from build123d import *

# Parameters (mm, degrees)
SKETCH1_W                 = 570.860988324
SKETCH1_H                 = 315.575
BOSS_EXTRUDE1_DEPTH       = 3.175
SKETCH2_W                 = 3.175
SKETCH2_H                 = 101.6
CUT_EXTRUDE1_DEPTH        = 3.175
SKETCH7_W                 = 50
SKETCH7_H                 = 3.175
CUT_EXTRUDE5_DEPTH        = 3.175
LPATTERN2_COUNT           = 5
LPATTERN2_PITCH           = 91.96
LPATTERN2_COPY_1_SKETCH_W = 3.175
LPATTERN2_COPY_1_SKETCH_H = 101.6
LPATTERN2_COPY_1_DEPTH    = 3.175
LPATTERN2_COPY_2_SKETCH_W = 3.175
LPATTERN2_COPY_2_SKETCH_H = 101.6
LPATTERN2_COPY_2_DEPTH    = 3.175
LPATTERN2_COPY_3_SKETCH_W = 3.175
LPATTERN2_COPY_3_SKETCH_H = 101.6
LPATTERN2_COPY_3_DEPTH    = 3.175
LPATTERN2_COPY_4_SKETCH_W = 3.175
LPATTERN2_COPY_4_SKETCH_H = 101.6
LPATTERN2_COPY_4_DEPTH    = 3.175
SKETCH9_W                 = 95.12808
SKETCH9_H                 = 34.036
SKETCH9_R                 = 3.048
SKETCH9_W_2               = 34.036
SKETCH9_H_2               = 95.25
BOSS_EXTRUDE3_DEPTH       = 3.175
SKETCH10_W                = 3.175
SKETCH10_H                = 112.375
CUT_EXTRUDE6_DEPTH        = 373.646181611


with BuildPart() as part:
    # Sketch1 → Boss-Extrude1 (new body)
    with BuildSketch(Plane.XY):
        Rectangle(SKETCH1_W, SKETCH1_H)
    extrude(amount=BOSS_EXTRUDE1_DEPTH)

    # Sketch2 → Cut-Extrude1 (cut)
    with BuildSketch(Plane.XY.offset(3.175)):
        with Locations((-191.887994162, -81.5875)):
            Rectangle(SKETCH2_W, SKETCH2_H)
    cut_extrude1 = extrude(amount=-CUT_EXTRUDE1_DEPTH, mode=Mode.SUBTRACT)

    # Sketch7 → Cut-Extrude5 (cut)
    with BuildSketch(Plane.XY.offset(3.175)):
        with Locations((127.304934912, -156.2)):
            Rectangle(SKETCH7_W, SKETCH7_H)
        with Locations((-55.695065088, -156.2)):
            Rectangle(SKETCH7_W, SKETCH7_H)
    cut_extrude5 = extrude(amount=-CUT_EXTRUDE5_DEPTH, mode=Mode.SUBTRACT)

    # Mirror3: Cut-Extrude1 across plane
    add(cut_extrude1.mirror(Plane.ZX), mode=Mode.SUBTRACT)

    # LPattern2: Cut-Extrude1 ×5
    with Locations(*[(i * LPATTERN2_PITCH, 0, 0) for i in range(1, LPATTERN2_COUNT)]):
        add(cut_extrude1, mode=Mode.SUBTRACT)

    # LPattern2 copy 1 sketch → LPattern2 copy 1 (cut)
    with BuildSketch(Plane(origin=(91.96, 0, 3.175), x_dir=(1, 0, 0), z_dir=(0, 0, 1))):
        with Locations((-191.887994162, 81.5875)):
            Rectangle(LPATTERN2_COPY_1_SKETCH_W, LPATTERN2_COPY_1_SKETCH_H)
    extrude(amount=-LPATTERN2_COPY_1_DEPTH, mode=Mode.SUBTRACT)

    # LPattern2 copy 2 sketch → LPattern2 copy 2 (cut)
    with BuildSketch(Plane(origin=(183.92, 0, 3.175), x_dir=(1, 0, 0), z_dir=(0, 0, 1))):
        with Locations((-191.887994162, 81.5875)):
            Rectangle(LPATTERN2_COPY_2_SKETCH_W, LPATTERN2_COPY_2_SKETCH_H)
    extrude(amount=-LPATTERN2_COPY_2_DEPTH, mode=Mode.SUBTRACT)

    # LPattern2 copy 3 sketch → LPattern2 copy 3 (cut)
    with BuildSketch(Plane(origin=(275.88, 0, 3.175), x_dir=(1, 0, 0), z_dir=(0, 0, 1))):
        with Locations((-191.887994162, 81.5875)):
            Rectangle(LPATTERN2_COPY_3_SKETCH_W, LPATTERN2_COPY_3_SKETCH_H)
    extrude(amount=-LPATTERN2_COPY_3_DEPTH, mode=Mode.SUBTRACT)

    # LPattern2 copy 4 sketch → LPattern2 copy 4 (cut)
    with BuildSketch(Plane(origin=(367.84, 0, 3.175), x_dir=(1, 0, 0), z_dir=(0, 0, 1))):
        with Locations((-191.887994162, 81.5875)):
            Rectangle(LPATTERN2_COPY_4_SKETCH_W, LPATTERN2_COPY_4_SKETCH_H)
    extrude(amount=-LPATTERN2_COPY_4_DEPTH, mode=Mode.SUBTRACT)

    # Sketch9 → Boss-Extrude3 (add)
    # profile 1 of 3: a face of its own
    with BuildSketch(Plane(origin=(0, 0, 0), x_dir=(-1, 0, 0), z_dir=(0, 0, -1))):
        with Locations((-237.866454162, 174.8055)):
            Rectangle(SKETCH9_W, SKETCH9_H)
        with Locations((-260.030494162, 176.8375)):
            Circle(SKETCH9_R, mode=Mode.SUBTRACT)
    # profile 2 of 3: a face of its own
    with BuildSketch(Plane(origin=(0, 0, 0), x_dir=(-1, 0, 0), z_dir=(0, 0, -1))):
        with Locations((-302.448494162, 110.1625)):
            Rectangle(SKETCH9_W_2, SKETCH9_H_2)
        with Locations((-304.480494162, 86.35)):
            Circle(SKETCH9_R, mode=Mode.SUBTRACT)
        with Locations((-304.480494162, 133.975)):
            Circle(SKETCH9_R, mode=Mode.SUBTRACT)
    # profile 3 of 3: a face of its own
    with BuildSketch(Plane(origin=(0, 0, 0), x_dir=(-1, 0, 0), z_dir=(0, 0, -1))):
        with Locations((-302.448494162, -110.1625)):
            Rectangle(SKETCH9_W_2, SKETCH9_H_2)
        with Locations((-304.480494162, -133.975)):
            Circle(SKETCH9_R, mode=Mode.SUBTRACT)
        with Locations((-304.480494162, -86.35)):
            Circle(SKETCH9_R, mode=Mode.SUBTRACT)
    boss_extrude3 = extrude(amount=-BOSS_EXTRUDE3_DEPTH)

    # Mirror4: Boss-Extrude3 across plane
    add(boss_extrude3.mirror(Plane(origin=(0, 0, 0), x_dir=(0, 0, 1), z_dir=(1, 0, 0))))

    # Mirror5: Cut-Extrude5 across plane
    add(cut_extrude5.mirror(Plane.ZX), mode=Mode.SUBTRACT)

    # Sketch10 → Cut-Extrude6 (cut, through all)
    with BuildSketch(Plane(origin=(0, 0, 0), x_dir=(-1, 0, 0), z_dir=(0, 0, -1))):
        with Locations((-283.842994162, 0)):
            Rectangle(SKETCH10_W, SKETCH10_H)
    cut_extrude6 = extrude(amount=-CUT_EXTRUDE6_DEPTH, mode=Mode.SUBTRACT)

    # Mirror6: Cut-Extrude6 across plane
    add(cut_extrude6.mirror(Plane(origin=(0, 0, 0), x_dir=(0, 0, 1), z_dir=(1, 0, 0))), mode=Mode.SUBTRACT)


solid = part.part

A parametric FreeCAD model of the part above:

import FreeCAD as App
import Part
import Sketcher

V = App.Vector
Q = App.Units.Quantity


def add_polygon(sketch, points):
    """Adds a closed chain of lines whose ends are joined by coincident constraints."""
    first, n = sketch.GeometryCount, len(points)
    for a, b in zip(points, points[1:] + points[:1]):
        sketch.addGeometry(Part.LineSegment(App.Vector(*a, 0), App.Vector(*b, 0)), False)
    for i in range(n):
        sketch.addConstraint(Sketcher.Constraint("Coincident", first + i, 2, first + (i + 1) % n, 1))

doc = App.newDocument("Part")
body = doc.addObject("PartDesign::Body", "Body")

# Sketch on XY plane
sketch1 = body.newObject("Sketcher::SketchObject", "Sketch")
sketch1.AttachmentSupport = (doc.getObject("XY_Plane"), [""])
sketch1.MapMode = "FlatFace"
add_polygon(sketch1, [(-285, 158), (-285, -158), (285, -158), (285, 158)])  # lines 0-3
sketch1.addConstraint([
    Sketcher.Constraint("Vertical", 0),
    Sketcher.Constraint("Horizontal", 1),
    Sketcher.Constraint("Vertical", 2),
    Sketcher.Constraint("Horizontal", 3),
    Sketcher.Constraint("Symmetric", 0, 2, 2, 2, -1, 1),
    Sketcher.Constraint("DistanceY", 0, 2, 0, 1, 315.575),
    Sketcher.Constraint("DistanceX", 1, 1, 1, 2, 570.860988),
])
pad1 = body.newObject("PartDesign::Pad", "Pad")
pad1.Profile = sketch1
pad1.Length = Q("0.125 in")

# Sketch on XY plane
sketch2 = body.newObject("Sketcher::SketchObject", "Sketch001")
sketch2.AttachmentSupport = (doc.getObject("XY_Plane"), [""])
sketch2.MapMode = "FlatFace"
sketch2.AttachmentOffset = App.Placement(V(0, 0, 0.125 * 25.4), App.Rotation())
add_polygon(sketch2, [(-193.5, -30.8), (-193.5, -132.4), (-190.3, -132.4), (-190.3, -30.8)])  # lines 0-3
sketch2.addConstraint([
    Sketcher.Constraint("Vertical", 0),
    Sketcher.Constraint("Horizontal", 1),
    Sketcher.Constraint("Vertical", 2),
    Sketcher.Constraint("Horizontal", 3),
    Sketcher.Constraint("DistanceY", 0, 2, 0, 1, Q("4 in")),
    Sketcher.Constraint("DistanceX", 1, 1, 1, 2, Q("0.125 in")),
    Sketcher.Constraint("DistanceY", 0, 2, -1, 1, 132.3875),
    Sketcher.Constraint("DistanceX", 0, 2, -1, 1, 193.475494),
])
pocket1 = body.newObject("PartDesign::Pocket", "Pocket")
pocket1.Profile = sketch2
pocket1.Length = Q("0.125 in")

# Sketch on XY plane
sketch3 = body.newObject("Sketcher::SketchObject", "Sketch002")
sketch3.AttachmentSupport = (doc.getObject("XY_Plane"), [""])
sketch3.MapMode = "FlatFace"
sketch3.AttachmentOffset = App.Placement(V(0, 0, 0.125 * 25.4), App.Rotation())
add_polygon(sketch3, [(102.3, -154.6), (102.3, -157.8), (152.3, -157.8), (152.3, -154.6)])  # lines 0-3
add_polygon(sketch3, [(-80.7, -154.6), (-80.7, -157.8), (-30.7, -157.8), (-30.7, -154.6)])  # lines 4-7
sketch3.addConstraint([
    Sketcher.Constraint("Vertical", 0),
    Sketcher.Constraint("Horizontal", 1),
    Sketcher.Constraint("Vertical", 2),
    Sketcher.Constraint("Horizontal", 3),
    Sketcher.Constraint("Vertical", 4),
    Sketcher.Constraint("Horizontal", 5),
    Sketcher.Constraint("Vertical", 6),
    Sketcher.Constraint("Horizontal", 7),
    Sketcher.Constraint("Horizontal", 1, 2, 4, 2),
    Sketcher.Constraint("Horizontal", 3, 2, 6, 2),
    Sketcher.Constraint("Equal", 3, 5),
    Sketcher.Constraint("DistanceY", 0, 2, 0, 1, Q("0.125 in")),
    Sketcher.Constraint("DistanceX", 1, 1, 1, 2, 50.0),
    Sketcher.Constraint("DistanceY", 0, 2, -1, 1, 157.7875),
    Sketcher.Constraint("DistanceX", 4, 2, 0, 2, 183.0),
    Sketcher.Constraint("DistanceX", -1, 1, 0, 2, 102.304935),
])
pocket2 = body.newObject("PartDesign::Pocket", "Pocket001")
pocket2.Profile = sketch3
pocket2.Length = Q("0.125 in")
doc.recompute()

mirrored = body.newObject("PartDesign::Mirrored", "Mirrored")
mirrored.Originals = [pocket1]
mirrored.MirrorPlane = (doc.getObject("XZ_Plane"), [""])
body.Tip = mirrored
doc.recompute()

linearpattern = body.newObject("PartDesign::LinearPattern", "LinearPattern")
linearpattern.Originals = [pocket1]
linearpattern.Direction = (doc.getObject("X_Axis"), [""])
linearpattern.Mode = "offset"
linearpattern.Offset = 91.96
linearpattern.Occurrences = 5
body.Tip = linearpattern

# Sketch on XY plane
sketch4 = body.newObject("Sketcher::SketchObject", "Sketch003")
sketch4.AttachmentSupport = (doc.getObject("XY_Plane"), [""])
sketch4.MapMode = "FlatFace"
sketch4.AttachmentOffset = App.Placement(V(0, 0, 0.125 * 25.4), App.Rotation())
add_polygon(sketch4, [(-101.5, 132.4), (-101.5, 30.8), (-98.3, 30.8), (-98.3, 132.4)])  # lines 0-3
sketch4.addConstraint([
    Sketcher.Constraint("Vertical", 0),
    Sketcher.Constraint("Horizontal", 1),
    Sketcher.Constraint("Vertical", 2),
    Sketcher.Constraint("Horizontal", 3),
    Sketcher.Constraint("DistanceY", 0, 2, 0, 1, Q("4 in")),
    Sketcher.Constraint("DistanceX", 1, 1, 1, 2, Q("0.125 in")),
    Sketcher.Constraint("DistanceY", -1, 1, 0, 2, 30.7875),
    Sketcher.Constraint("DistanceX", 0, 2, -1, 1, 101.515494),
])
pocket3 = body.newObject("PartDesign::Pocket", "Pocket002")
pocket3.Profile = sketch4
pocket3.Length = Q("0.125 in")

# Sketch on XY plane
sketch5 = body.newObject("Sketcher::SketchObject", "Sketch004")
sketch5.AttachmentSupport = (doc.getObject("XY_Plane"), [""])
sketch5.MapMode = "FlatFace"
sketch5.AttachmentOffset = App.Placement(V(0, 0, 0.125 * 25.4), App.Rotation())
add_polygon(sketch5, [(-9.6, 132.4), (-9.6, 30.8), (-6.4, 30.8), (-6.4, 132.4)])  # lines 0-3
sketch5.addConstraint([
    Sketcher.Constraint("Vertical", 0),
    Sketcher.Constraint("Horizontal", 1),
    Sketcher.Constraint("Vertical", 2),
    Sketcher.Constraint("Horizontal", 3),
    Sketcher.Constraint("DistanceY", 0, 2, 0, 1, Q("4 in")),
    Sketcher.Constraint("DistanceX", 1, 1, 1, 2, Q("0.125 in")),
    Sketcher.Constraint("DistanceY", -1, 1, 0, 2, 30.7875),
    Sketcher.Constraint("DistanceX", 0, 2, -1, 1, 9.555494),
])
pocket4 = body.newObject("PartDesign::Pocket", "Pocket003")
pocket4.Profile = sketch5
pocket4.Length = Q("0.125 in")

# Sketch on XY plane
sketch6 = body.newObject("Sketcher::SketchObject", "Sketch005")
sketch6.AttachmentSupport = (doc.getObject("XY_Plane"), [""])
sketch6.MapMode = "FlatFace"
sketch6.AttachmentOffset = App.Placement(V(0, 0, 0.125 * 25.4), App.Rotation())
add_polygon(sketch6, [(82.4, 132.4), (82.4, 30.8), (85.6, 30.8), (85.6, 132.4)])  # lines 0-3
sketch6.addConstraint([
    Sketcher.Constraint("Vertical", 0),
    Sketcher.Constraint("Horizontal", 1),
    Sketcher.Constraint("Vertical", 2),
    Sketcher.Constraint("Horizontal", 3),
    Sketcher.Constraint("DistanceY", 0, 2, 0, 1, Q("4 in")),
    Sketcher.Constraint("DistanceX", 1, 1, 1, 2, Q("0.125 in")),
    Sketcher.Constraint("DistanceY", -1, 1, 0, 2, 30.7875),
    Sketcher.Constraint("DistanceX", -1, 1, 0, 2, 82.404506),
])
pocket5 = body.newObject("PartDesign::Pocket", "Pocket004")
pocket5.Profile = sketch6
pocket5.Length = Q("0.125 in")

# Sketch on XY plane
sketch7 = body.newObject("Sketcher::SketchObject", "Sketch006")
sketch7.AttachmentSupport = (doc.getObject("XY_Plane"), [""])
sketch7.MapMode = "FlatFace"
sketch7.AttachmentOffset = App.Placement(V(0, 0, 0.125 * 25.4), App.Rotation())
add_polygon(sketch7, [(174.4, 132.4), (174.4, 30.8), (177.5, 30.8), (177.5, 132.4)])  # lines 0-3
sketch7.addConstraint([
    Sketcher.Constraint("Vertical", 0),
    Sketcher.Constraint("Horizontal", 1),
    Sketcher.Constraint("Vertical", 2),
    Sketcher.Constraint("Horizontal", 3),
    Sketcher.Constraint("DistanceY", 0, 2, 0, 1, Q("4 in")),
    Sketcher.Constraint("DistanceX", 1, 1, 1, 2, Q("0.125 in")),
    Sketcher.Constraint("DistanceY", -1, 1, 0, 2, 30.7875),
    Sketcher.Constraint("DistanceX", -1, 1, 0, 2, 174.364506),
])
pocket6 = body.newObject("PartDesign::Pocket", "Pocket005")
pocket6.Profile = sketch7
pocket6.Length = Q("0.125 in")

# Sketch on XY plane
sketch8 = body.newObject("Sketcher::SketchObject", "Sketch007")
sketch8.AttachmentSupport = (doc.getObject("XY_Plane"), [""])
sketch8.MapMode = "FlatFace"
add_polygon(sketch8, [(285.4, 191.8), (285.4, 157.8), (190.3, 157.8), (190.3, 191.8)])  # lines 0-3
sketch8.addGeometry(Part.Circle(V(260, 176.8, 0), V(0, 0, 1), 3), False)  # 4
add_polygon(sketch8, [(319.5, 157.8), (319.5, 62.5), (285.4, 62.5), (285.4, 157.8)])  # lines 5-8
sketch8.addGeometry(Part.Circle(V(304.5, 86.3, 0), V(0, 0, 1), 3), False)  # 9
sketch8.addGeometry(Part.Circle(V(304.5, 134, 0), V(0, 0, 1), 3), False)  # 10
add_polygon(sketch8, [(319.5, -62.5), (319.5, -157.8), (285.4, -157.8), (285.4, -62.5)])  # lines 11-14
sketch8.addGeometry(Part.Circle(V(304.5, -134, 0), V(0, 0, 1), 3), False)  # 15
sketch8.addGeometry(Part.Circle(V(304.5, -86.3, 0), V(0, 0, 1), 3), False)  # 16
sketch8.addConstraint([
    Sketcher.Constraint("Vertical", 0),
    Sketcher.Constraint("Horizontal", 1),
    Sketcher.Constraint("Vertical", 2),
    Sketcher.Constraint("Horizontal", 3),
    Sketcher.Constraint("Vertical", 5),
    Sketcher.Constraint("Horizontal", 6),
    Sketcher.Constraint("Vertical", 7),
    Sketcher.Constraint("Horizontal", 8),
    Sketcher.Constraint("Vertical", 11),
    Sketcher.Constraint("Horizontal", 12),
    Sketcher.Constraint("Vertical", 13),
    Sketcher.Constraint("Horizontal", 14),
    Sketcher.Constraint("Coincident", 7, 2, 0, 2),
    Sketcher.Constraint("Equal", 4, 9),
    Sketcher.Constraint("Equal", 9, 10),
    Sketcher.Constraint("Equal", 10, 15),
    Sketcher.Constraint("Equal", 15, 16),
    Sketcher.Constraint("Symmetric", 10, 3, 15, 3, -1),
    Sketcher.Constraint("Symmetric", 9, 3, 16, 3, -1),
    Sketcher.Constraint("Symmetric", 8, 2, 11, 2, -1),
    Sketcher.Constraint("Symmetric", 6, 2, 13, 2, -1),
    Sketcher.Constraint("Vertical", 9, 3, 10, 3),
    Sketcher.Constraint("Equal", 14, 0),
    Sketcher.Constraint("Diameter", 4, Q("0.24 in")),
    Sketcher.Constraint("DistanceX", 4, 3, 0, 2, Q("1 in")),
    Sketcher.Constraint("DistanceX", 6, 2, 6, 1, Q("1.34 in")),
    Sketcher.Constraint("DistanceY", 5, 2, 5, 1, Q("3.75 in")),
    Sketcher.Constraint("DistanceY", 5, 2, 4, 3, Q("4.5 in")),
    Sketcher.Constraint("DistanceX", 4, 3, 9, 3, Q("1.75 in")),
    Sketcher.Constraint("DistanceX", 1, 2, 1, 1, Q("3.7452 in")),
    Sketcher.Constraint("DistanceY", 9, 3, 4, 3, Q("3.5625 in")),
    Sketcher.Constraint("DistanceY", 9, 3, 10, 3, Q("1.875 in")),
    Sketcher.Constraint("DistanceY", -1, 1, 4, 3, 176.8375),
    Sketcher.Constraint("DistanceX", -1, 1, 4, 3, 260.030494),
])
pad2 = body.newObject("PartDesign::Pad", "Pad001")
pad2.Profile = sketch8
pad2.Length = Q("0.125 in")
doc.recompute()

mirrored2 = body.newObject("PartDesign::Mirrored", "Mirrored001")
mirrored2.Originals = [pad2]
mirrored2.MirrorPlane = (doc.getObject("YZ_Plane"), [""])
body.Tip = mirrored2
doc.recompute()

mirrored3 = body.newObject("PartDesign::Mirrored", "Mirrored002")
mirrored3.Originals = [pocket2]
mirrored3.MirrorPlane = (doc.getObject("XZ_Plane"), [""])
body.Tip = mirrored3

# Sketch on XY plane
sketch9 = body.newObject("Sketcher::SketchObject", "Sketch008")
sketch9.AttachmentSupport = (doc.getObject("XY_Plane"), [""])
sketch9.MapMode = "FlatFace"
add_polygon(sketch9, [(285.4, 56.2), (285.4, -56.2), (282.3, -56.2), (282.3, 56.2)])  # lines 0-3
sketch9.addConstraint([
    Sketcher.Constraint("Vertical", 0),
    Sketcher.Constraint("Horizontal", 1),
    Sketcher.Constraint("Vertical", 2),
    Sketcher.Constraint("Horizontal", 3),
    Sketcher.Constraint("DistanceX", 1, 2, 1, 1, Q("0.125 in")),
    Sketcher.Constraint("DistanceY", 0, 2, 0, 1, 112.375),
    Sketcher.Constraint("DistanceY", 0, 2, -1, 1, 56.1875),
    Sketcher.Constraint("DistanceX", -1, 1, 0, 2, 285.430494),
])
pocket7 = body.newObject("PartDesign::Pocket", "Pocket006")
pocket7.Profile = sketch9
pocket7.Type = "ThroughAll"
pocket7.Reversed = True
doc.recompute()

mirrored4 = body.newObject("PartDesign::Mirrored", "Mirrored003")
mirrored4.Originals = [pocket7]
mirrored4.MirrorPlane = (doc.getObject("YZ_Plane"), [""])
body.Tip = mirrored4

doc.recompute()
